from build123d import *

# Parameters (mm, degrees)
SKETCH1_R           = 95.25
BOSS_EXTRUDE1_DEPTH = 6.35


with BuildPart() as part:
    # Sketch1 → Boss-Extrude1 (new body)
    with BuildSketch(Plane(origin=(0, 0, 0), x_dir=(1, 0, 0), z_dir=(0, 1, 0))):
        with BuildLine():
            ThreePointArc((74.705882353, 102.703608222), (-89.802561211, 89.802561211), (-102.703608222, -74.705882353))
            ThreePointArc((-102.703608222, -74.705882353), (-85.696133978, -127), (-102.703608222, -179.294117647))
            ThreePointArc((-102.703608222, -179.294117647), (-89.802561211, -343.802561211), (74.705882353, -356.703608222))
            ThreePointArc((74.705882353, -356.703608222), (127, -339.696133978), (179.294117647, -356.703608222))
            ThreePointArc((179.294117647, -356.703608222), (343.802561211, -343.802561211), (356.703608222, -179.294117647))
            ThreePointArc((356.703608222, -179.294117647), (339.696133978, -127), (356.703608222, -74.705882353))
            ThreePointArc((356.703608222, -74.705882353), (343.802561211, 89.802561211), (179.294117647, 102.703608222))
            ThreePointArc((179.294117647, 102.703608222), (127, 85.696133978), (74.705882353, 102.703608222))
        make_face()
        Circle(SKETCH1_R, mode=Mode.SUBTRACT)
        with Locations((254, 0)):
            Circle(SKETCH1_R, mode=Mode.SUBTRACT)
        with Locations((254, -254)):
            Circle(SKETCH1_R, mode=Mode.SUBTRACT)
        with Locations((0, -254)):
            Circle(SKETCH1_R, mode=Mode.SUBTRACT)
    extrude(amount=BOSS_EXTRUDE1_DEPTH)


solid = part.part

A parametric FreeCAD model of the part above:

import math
import FreeCAD as App
import Part
import Sketcher
from FreeCAD import Vector
Q = App.Units.Quantity

doc = App.newDocument("Part")
body = doc.addObject("PartDesign::Body", "Body")

# Sketch on XZ plane
sketch1 = doc.addObject("Sketcher::SketchObject", "Sketch")
body.addObject(sketch1)
sketch1.AttachmentSupport = (doc.XZ_Plane, [""])
sketch1.MapMode = "FlatFace"
sketch1.addGeometry([
    Part.ArcOfCircle(Part.Circle(Vector(0, 0, 0), Vector(0, 0, 1), 127), math.radians(144), math.radians(306)),  # 0
    Part.ArcOfCircle(Part.Circle(Vector(-175, 127, 0), Vector(0, 0, 1), 89), math.radians(-36), math.radians(36)),  # 1
    Part.ArcOfCircle(Part.Circle(Vector(0, 254, 0), Vector(0, 0, 1), 127), math.radians(54), math.radians(216)),  # 2
    Part.ArcOfCircle(Part.Circle(Vector(127, 429, 0), Vector(0, 0, 1), 89), math.radians(-126), math.radians(-54)),  # 3
    Part.ArcOfCircle(Part.Circle(Vector(254, 254, 0), Vector(0, 0, 1), 127), math.radians(-36), math.radians(126)),  # 4
    Part.ArcOfCircle(Part.Circle(Vector(429, 127, 0), Vector(0, 0, 1), 89), math.radians(144), math.radians(216)),  # 5
    Part.ArcOfCircle(Part.Circle(Vector(254, 0, 0), Vector(0, 0, 1), 127), math.radians(-126), math.radians(36)),  # 6
    Part.ArcOfCircle(Part.Circle(Vector(127, -175, 0), Vector(0, 0, 1), 89), math.radians(54), math.radians(126)),  # 7
    Part.Circle(Vector(0, 254, 0), Vector(0, 0, 1), 95),  # 8
    Part.Circle(Vector(254, 254, 0), Vector(0, 0, 1), 95),  # 9
    Part.Circle(Vector(0, 0, 0), Vector(0, 0, 1), 95),  # 10
    Part.Circle(Vector(254, 0, 0), Vector(0, 0, 1), 95),  # 11
], False)
sketch1.addConstraint([
    Sketcher.Constraint("Tangent", 0, 1, 1, 1),
    Sketcher.Constraint("Tangent", 1, 2, 2, 2),
    Sketcher.Constraint("Tangent", 2, 1, 3, 1),
    Sketcher.Constraint("Tangent", 3, 2, 4, 2),
    Sketcher.Constraint("Tangent", 4, 1, 5, 1),
    Sketcher.Constraint("Tangent", 5, 2, 6, 2),
    Sketcher.Constraint("Tangent", 6, 1, 7, 1),
    Sketcher.Constraint("Tangent", 7, 2, 0, 2),
    Sketcher.Constraint("Coincident", 0, 3, -1, 1),
    Sketcher.Constraint("Coincident", 10, 3, -1, 1),
    Sketcher.Constraint("Coincident", 8, 3, 2, 3),
    Sketcher.Constraint("Coincident", 9, 3, 4, 3),
    Sketcher.Constraint("Coincident", 11, 3, 6, 3),
    Sketcher.Constraint("Equal", 0, 2),
    Sketcher.Constraint("Equal", 1, 3),
    Sketcher.Constraint("Equal", 2, 4),
    Sketcher.Constraint("Equal", 3, 5),
    Sketcher.Constraint("Equal", 4, 6),
    Sketcher.Constraint("Equal", 5, 7),
    Sketcher.Constraint("Equal", 8, 9),
    Sketcher.Constraint("Equal", 9, 10),
    Sketcher.Constraint("Equal", 10, 11),
    Sketcher.Constraint("PointOnObject", 2, 3, -2),
    Sketcher.Constraint("PointOnObject", 6, 3, -1),
    Sketcher.Constraint("Horizontal", 2, 3, 4, 3),
    Sketcher.Constraint("Horizontal", 1, 3, 5, 3),
    Sketcher.Constraint("Radius", 0, Q("5 in")),
    Sketcher.Constraint("Diameter", 8, Q("7.5 in")),
    Sketcher.Constraint("Radius", 1, Q("3.5 in")),
    Sketcher.Constraint("DistanceY", -1, 1, 1, 3, Q("5 in")),
    Sketcher.Constraint("DistanceX", -1, 1, 3, 3, Q("5 in")),
])
pad1 = doc.addObject("PartDesign::Pad", "Pad")
body.addObject(pad1)
pad1.Profile = sketch1
pad1.Length = Q("0.25 in")
pad1.Reversed = True

doc.recompute()
